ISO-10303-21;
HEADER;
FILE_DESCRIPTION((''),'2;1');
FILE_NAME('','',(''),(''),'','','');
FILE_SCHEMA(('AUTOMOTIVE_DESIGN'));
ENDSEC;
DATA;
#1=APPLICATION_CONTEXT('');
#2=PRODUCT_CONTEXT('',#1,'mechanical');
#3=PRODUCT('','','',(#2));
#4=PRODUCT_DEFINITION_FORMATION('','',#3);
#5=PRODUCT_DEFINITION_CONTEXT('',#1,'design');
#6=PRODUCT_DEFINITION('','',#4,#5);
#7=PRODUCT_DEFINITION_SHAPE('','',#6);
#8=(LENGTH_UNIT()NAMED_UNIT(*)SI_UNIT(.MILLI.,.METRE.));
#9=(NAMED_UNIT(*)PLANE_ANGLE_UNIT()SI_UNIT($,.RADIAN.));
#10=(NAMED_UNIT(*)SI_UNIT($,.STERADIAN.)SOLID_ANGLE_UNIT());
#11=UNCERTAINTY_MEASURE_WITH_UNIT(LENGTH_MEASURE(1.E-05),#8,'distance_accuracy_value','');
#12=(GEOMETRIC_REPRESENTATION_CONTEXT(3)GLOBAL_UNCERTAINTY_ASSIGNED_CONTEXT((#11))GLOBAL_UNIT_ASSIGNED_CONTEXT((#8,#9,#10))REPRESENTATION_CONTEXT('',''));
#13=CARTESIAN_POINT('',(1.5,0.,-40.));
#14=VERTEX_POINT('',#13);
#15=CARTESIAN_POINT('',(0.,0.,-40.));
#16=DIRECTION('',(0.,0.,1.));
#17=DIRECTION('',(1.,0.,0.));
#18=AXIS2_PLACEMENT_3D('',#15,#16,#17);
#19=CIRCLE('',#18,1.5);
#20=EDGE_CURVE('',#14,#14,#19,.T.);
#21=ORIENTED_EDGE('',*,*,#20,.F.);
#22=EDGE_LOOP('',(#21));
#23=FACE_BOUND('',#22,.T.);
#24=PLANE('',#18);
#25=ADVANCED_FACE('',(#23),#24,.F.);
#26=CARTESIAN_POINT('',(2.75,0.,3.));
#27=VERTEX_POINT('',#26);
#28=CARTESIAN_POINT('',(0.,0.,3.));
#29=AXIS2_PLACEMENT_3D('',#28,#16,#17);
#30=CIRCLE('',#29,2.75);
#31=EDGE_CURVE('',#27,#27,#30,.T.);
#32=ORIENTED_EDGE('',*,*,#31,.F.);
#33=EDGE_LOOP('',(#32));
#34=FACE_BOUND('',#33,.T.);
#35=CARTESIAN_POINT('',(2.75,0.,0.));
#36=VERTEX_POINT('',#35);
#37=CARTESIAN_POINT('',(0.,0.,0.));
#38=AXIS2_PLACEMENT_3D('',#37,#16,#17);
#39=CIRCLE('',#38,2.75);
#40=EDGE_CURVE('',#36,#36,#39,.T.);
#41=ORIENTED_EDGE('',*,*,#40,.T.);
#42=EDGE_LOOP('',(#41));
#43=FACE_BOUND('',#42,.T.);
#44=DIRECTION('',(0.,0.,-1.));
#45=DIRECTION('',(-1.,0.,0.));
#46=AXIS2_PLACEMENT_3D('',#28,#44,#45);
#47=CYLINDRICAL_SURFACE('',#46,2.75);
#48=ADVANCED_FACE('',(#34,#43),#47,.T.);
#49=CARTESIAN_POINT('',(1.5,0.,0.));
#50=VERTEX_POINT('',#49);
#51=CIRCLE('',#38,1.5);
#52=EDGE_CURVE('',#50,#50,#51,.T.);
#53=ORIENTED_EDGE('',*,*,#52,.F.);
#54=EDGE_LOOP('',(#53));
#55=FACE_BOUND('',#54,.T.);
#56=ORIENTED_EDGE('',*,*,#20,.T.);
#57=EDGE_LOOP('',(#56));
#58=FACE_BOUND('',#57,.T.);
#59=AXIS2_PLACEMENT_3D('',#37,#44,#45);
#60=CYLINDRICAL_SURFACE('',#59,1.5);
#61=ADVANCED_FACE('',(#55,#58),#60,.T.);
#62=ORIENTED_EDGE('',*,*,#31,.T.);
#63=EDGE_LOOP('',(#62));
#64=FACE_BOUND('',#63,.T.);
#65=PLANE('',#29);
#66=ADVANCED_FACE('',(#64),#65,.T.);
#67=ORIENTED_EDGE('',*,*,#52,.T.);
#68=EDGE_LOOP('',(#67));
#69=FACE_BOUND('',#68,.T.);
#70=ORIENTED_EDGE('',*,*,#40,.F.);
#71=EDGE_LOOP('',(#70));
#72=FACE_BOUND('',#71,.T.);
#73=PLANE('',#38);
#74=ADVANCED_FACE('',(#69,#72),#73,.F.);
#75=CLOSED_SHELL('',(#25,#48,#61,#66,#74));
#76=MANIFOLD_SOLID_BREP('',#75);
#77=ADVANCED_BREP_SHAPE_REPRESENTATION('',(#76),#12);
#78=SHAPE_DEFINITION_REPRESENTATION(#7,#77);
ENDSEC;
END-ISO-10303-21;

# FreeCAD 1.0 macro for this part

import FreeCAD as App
import Part
import Sketcher

V = App.Vector

doc = App.newDocument("Part")
body = doc.addObject("PartDesign::Body", "Body")

sketch1 = body.newObject("Sketcher::SketchObject", "Sketch")
sketch1.AttachmentSupport = (doc.getObject("XY_Plane"), [""])
sketch1.MapMode = "FlatFace"
sketch1.AttachmentOffset = App.Placement(V(0, 0, -40), App.Rotation())
sketch1.addGeometry(Part.Circle(V(0, 0, 0), V(0, 0, 1), 1.5), False)
sketch1.addConstraint(Sketcher.Constraint("Coincident", 0, 3, -1, 1))
sketch1.addConstraint(Sketcher.Constraint("Diameter", 0, 3.0))
pad1 = body.newObject("PartDesign::Pad", "Pad")
pad1.Profile = sketch1
pad1.Length = 40

sketch2 = body.newObject("Sketcher::SketchObject", "Sketch001")
sketch2.AttachmentSupport = (doc.getObject("XY_Plane"), [""])
sketch2.MapMode = "FlatFace"
sketch2.addGeometry(Part.Circle(V(0, 0, 0), V(0, 0, 1), 2.8), False)
sketch2.addConstraint(Sketcher.Constraint("Coincident", 0, 3, -1, 1))
sketch2.addConstraint(Sketcher.Constraint("Diameter", 0, 5.5))
pad2 = body.newObject("PartDesign::Pad", "Pad001")
pad2.Profile = sketch2
pad2.Length = 3

doc.recompute()
